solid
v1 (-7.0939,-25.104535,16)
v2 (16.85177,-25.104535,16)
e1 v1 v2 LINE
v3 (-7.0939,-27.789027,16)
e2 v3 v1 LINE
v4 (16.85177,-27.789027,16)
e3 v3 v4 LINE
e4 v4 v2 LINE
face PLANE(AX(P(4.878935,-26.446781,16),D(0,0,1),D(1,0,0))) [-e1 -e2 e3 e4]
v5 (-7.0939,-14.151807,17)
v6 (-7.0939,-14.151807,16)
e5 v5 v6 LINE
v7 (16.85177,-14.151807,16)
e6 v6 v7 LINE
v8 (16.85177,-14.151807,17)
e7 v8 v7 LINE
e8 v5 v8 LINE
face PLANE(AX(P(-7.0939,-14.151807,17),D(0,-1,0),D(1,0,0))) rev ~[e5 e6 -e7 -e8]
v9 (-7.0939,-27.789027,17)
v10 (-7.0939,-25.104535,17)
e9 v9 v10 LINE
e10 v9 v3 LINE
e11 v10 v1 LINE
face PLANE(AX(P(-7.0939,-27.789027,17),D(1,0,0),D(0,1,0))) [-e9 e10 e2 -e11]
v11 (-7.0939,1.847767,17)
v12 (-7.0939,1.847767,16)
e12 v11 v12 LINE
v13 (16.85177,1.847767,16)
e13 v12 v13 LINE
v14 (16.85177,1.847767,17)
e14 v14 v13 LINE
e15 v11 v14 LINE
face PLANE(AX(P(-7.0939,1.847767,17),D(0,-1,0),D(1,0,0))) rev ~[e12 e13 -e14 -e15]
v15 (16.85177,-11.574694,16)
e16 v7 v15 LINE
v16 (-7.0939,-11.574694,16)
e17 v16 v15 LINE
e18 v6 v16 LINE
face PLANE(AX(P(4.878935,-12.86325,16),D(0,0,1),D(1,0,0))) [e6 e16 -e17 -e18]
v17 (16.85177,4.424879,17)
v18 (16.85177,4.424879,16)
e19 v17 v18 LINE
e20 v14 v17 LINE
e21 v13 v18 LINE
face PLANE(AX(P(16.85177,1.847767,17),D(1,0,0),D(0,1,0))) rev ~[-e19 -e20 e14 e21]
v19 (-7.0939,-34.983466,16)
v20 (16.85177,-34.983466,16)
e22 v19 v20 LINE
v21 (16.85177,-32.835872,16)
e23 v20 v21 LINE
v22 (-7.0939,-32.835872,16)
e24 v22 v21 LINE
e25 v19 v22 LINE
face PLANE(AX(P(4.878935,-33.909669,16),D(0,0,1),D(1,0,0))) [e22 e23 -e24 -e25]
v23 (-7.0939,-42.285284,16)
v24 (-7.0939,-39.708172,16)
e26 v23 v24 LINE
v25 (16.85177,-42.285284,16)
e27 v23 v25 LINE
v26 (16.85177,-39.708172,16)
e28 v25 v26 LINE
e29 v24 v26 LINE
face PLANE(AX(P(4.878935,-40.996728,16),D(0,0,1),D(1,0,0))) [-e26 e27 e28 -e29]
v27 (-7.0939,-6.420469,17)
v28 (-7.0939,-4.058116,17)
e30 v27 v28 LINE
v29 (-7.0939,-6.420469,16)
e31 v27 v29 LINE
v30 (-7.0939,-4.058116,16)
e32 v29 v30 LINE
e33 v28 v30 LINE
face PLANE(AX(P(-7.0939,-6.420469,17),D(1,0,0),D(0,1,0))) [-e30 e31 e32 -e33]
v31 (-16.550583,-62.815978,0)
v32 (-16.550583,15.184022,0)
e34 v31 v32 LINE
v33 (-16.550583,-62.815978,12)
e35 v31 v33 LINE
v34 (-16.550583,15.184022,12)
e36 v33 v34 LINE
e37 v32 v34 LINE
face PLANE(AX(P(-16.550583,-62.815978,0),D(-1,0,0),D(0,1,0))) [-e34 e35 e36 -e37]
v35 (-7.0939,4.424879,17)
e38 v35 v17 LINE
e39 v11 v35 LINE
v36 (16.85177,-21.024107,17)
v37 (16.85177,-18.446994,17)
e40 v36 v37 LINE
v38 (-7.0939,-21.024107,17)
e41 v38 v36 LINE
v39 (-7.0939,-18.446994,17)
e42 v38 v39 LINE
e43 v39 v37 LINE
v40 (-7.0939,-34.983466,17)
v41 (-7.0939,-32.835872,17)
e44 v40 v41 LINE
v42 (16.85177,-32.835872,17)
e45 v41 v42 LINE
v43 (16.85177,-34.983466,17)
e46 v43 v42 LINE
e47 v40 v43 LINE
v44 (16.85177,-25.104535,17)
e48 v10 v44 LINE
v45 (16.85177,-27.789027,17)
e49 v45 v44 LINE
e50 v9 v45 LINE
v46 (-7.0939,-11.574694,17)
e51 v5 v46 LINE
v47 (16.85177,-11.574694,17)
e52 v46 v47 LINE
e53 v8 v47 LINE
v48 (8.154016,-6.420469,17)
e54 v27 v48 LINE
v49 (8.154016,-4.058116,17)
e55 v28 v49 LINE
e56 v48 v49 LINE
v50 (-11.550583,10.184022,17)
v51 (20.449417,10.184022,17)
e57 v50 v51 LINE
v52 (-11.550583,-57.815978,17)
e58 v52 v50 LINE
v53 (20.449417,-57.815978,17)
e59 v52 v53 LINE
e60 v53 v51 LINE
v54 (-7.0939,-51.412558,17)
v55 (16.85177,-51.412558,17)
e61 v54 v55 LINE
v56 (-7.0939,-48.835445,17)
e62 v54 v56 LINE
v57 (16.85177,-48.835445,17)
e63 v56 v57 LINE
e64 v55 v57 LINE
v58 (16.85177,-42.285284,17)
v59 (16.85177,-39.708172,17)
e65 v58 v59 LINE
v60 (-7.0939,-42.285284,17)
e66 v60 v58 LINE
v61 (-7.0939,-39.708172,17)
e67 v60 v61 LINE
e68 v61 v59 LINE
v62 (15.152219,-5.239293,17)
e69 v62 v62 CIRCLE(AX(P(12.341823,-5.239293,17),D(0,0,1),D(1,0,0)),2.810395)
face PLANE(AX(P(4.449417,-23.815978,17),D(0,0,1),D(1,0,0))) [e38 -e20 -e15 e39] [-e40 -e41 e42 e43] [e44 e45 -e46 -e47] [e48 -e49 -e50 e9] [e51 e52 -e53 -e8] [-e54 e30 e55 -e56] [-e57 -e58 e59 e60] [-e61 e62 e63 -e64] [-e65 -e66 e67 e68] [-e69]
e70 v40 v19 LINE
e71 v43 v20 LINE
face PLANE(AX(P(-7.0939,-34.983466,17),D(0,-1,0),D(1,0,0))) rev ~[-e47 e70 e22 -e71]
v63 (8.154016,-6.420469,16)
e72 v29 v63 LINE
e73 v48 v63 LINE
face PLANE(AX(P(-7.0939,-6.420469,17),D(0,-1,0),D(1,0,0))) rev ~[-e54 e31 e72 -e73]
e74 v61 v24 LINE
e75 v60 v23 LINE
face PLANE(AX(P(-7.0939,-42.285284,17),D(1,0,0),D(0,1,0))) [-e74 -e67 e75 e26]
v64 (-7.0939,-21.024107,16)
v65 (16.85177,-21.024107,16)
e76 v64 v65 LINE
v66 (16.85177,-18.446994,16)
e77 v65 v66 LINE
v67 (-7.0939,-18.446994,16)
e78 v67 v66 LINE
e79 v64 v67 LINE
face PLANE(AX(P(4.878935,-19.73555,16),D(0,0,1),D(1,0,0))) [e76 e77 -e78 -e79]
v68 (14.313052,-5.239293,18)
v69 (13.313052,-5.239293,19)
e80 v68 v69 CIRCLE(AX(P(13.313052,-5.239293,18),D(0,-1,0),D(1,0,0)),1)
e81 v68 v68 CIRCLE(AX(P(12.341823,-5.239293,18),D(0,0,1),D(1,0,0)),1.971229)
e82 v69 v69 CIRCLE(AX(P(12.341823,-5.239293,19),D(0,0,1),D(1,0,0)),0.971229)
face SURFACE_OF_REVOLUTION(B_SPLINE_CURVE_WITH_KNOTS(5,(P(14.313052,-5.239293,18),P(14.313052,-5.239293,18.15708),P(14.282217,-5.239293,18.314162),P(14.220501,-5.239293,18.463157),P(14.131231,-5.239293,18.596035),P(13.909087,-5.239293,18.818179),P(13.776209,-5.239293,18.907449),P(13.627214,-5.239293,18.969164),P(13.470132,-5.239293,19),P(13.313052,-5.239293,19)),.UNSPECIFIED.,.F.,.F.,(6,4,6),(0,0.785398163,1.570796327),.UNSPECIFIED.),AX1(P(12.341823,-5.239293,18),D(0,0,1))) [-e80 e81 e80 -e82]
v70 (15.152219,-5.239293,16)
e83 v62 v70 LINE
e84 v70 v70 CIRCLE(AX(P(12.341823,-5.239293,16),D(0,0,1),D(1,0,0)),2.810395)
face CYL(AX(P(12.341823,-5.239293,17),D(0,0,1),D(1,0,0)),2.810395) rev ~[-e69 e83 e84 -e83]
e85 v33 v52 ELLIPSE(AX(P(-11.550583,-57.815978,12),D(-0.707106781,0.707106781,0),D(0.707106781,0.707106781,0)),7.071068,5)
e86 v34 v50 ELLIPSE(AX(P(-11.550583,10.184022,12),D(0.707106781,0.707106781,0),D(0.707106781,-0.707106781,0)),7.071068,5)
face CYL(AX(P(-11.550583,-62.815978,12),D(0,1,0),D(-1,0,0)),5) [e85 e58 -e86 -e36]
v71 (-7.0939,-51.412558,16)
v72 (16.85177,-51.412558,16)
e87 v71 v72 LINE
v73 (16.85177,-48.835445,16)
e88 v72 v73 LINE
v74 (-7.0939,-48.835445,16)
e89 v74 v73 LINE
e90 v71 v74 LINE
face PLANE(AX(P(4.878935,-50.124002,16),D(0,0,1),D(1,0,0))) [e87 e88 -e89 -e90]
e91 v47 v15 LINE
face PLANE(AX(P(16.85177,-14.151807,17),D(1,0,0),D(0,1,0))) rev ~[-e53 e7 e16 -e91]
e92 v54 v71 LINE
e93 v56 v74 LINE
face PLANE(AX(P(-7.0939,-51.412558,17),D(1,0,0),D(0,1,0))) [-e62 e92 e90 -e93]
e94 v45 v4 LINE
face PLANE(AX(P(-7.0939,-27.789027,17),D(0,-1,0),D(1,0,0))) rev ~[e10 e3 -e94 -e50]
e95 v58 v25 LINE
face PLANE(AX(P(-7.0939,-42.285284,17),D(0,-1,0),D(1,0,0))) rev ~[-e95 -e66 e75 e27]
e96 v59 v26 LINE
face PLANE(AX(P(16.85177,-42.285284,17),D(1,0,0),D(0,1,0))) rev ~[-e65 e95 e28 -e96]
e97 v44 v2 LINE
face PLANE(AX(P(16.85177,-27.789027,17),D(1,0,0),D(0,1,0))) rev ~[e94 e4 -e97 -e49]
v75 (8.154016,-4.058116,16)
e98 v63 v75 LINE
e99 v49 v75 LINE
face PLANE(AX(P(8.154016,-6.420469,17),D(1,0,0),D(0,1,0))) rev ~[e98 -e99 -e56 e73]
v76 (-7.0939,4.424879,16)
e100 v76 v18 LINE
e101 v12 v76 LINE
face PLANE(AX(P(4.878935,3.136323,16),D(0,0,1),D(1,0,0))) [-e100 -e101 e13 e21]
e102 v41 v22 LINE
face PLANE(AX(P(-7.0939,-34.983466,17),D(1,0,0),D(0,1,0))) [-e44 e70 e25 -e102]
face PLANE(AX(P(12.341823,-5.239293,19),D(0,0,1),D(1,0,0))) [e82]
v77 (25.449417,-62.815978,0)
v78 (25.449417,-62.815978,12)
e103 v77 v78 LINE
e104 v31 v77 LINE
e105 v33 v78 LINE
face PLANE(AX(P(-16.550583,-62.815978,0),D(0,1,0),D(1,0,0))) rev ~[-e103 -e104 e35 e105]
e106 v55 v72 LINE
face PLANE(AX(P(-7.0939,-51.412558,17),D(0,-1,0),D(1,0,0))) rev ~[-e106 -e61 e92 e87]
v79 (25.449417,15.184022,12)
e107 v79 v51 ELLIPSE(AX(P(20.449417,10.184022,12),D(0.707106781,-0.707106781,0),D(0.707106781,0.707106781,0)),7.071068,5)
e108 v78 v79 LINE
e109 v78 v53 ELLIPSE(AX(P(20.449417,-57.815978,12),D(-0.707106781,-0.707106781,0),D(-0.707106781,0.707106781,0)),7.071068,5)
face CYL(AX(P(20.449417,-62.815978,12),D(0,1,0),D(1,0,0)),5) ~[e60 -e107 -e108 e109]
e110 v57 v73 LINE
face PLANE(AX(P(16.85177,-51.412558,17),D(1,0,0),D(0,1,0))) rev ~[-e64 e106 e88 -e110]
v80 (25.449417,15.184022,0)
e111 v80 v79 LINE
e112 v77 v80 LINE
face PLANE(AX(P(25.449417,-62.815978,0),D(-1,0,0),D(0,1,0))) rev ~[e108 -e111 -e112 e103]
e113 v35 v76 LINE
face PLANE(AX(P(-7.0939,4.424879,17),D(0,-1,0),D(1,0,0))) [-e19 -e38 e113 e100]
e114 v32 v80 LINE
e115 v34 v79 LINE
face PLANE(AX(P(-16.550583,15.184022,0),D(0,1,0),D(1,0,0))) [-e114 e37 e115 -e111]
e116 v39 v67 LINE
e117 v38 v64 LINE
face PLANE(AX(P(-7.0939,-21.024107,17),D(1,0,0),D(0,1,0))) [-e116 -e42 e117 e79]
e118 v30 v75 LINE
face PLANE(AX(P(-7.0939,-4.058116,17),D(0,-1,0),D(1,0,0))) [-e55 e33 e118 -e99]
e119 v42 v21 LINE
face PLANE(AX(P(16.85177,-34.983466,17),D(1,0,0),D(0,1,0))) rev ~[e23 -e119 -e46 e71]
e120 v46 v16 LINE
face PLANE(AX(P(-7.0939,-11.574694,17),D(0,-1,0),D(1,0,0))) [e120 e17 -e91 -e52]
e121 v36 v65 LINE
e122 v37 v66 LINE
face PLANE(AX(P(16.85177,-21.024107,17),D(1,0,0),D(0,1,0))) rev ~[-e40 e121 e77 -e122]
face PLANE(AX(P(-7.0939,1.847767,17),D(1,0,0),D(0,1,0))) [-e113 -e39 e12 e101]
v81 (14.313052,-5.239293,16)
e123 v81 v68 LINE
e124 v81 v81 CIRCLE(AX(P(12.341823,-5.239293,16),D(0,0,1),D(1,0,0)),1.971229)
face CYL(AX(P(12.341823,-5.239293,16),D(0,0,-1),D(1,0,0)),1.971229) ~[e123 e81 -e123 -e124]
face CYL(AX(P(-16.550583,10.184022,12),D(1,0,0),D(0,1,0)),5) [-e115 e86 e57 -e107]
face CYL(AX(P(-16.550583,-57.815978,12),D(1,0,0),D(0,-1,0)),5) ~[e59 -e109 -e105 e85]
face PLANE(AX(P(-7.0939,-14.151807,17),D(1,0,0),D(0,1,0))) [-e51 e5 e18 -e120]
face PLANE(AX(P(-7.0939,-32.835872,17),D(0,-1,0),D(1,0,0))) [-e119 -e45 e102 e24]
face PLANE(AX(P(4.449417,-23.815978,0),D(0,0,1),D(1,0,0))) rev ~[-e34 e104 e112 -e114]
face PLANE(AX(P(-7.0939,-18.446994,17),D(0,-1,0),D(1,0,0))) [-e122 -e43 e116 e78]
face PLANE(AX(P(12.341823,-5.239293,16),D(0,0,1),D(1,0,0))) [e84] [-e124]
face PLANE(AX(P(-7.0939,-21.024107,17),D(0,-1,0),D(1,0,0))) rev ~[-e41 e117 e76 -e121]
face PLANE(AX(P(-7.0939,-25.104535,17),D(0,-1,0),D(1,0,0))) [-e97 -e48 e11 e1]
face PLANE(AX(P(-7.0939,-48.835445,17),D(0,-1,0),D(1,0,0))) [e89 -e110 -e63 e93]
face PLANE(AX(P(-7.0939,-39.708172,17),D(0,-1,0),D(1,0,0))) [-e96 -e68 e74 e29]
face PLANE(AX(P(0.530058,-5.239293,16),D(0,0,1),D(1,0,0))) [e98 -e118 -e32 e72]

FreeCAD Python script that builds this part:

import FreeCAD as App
import Part
import Sketcher

V = App.Vector


def edges_at(feature, points):
    """Names of the edges that pass closest to the given points."""
    edges = feature.Shape.Edges
    near = lambda p: min(range(len(edges)), key=lambda i: edges[i].distToShape(Part.Vertex(*p))[0])
    return sorted({f"Edge{near(p) + 1}" for p in points})


def add_polygon(sketch, points):
    """Adds a closed chain of lines whose ends are joined by coincident constraints."""
    first, n = sketch.GeometryCount, len(points)
    for a, b in zip(points, points[1:] + points[:1]):
        sketch.addGeometry(Part.LineSegment(App.Vector(*a, 0), App.Vector(*b, 0)), False)
    for i in range(n):
        sketch.addConstraint(Sketcher.Constraint("Coincident", first + i, 2, first + (i + 1) % n, 1))

doc = App.newDocument("Part")
body = doc.addObject("PartDesign::Body", "Body")

# Sketch on XY plane
sketch1 = doc.addObject("Sketcher::SketchObject", "Sketch")
body.addObject(sketch1)
sketch1.AttachmentSupport = (doc.XY_Plane, [""])
sketch1.MapMode = "FlatFace"
add_polygon(sketch1, [(-17, 15), (-17, -63), (25, -63), (25, 15)])  # lines 0-3
sketch1.addConstraint(Sketcher.Constraint("Vertical", 0))
sketch1.addConstraint(Sketcher.Constraint("Horizontal", 1))
sketch1.addConstraint(Sketcher.Constraint("Vertical", 2))
sketch1.addConstraint(Sketcher.Constraint("Horizontal", 3))
sketch1.addConstraint(Sketcher.Constraint("DistanceX", 1, 1, 1, 2, 42.0))
sketch1.addConstraint(Sketcher.Constraint("DistanceY", 0, 2, 0, 1, 78.0))
sketch1.addConstraint(Sketcher.Constraint("DistanceY", 0, 2, -1, 1, 62.815978))
sketch1.addConstraint(Sketcher.Constraint("DistanceX", 0, 2, -1, 1, 16.550583))
pad1 = doc.addObject("PartDesign::Pad", "Pad")
body.addObject(pad1)
pad1.Profile = sketch1
pad1.Length = 17
doc.recompute()

fillet = doc.addObject("PartDesign::Fillet", "Fillet")
body.addObject(fillet)
fillet.Base = (pad1, edges_at(pad1, [
    (25.449, -23.816, 17),
    (4.449, 15.184, 17),
    (-16.551, -23.816, 17),
    (4.449, -62.816, 17),
]))
fillet.Radius = 5

# Sketch on XY plane
sketch2 = doc.addObject("Sketcher::SketchObject", "Sketch001")
body.addObject(sketch2)
sketch2.AttachmentSupport = (doc.XY_Plane, [""])
sketch2.MapMode = "FlatFace"
sketch2.AttachmentOffset = App.Placement(V(0, 0, 17), App.Rotation())
sketch2.addGeometry(Part.Circle(V(12.3, -5.2, 0), V(0, 0, 1), 2.8), False)  # 0
add_polygon(sketch2, [(-7.1, 4.4), (-7.1, 1.8), (16.9, 1.8), (16.9, 4.4)])  # lines 1-4
add_polygon(sketch2, [(-7.1, -4.1), (-7.1, -6.4), (8.2, -6.4), (8.2, -4.1)])  # lines 5-8
add_polygon(sketch2, [(-7.1, -11.6), (-7.1, -14.2), (16.9, -14.2), (16.9, -11.6)])  # lines 9-12
add_polygon(sketch2, [(-7.1, -18.4), (-7.1, -21), (16.9, -21), (16.9, -18.4)])  # lines 13-16
add_polygon(sketch2, [(-7.1, -25.1), (-7.1, -27.8), (16.9, -27.8), (16.9, -25.1)])  # lines 17-20
add_polygon(sketch2, [(-7.1, -32.8), (-7.1, -35), (16.9, -35), (16.9, -32.8)])  # lines 21-24
add_polygon(sketch2, [(-7.1, -39.7), (-7.1, -42.3), (16.9, -42.3), (16.9, -39.7)])  # lines 25-28
add_polygon(sketch2, [(-7.1, -48.8), (-7.1, -51.4), (16.9, -51.4), (16.9, -48.8)])  # lines 29-32
sketch2.addConstraint(Sketcher.Constraint("Vertical", 1))
sketch2.addConstraint(Sketcher.Constraint("Horizontal", 2))
sketch2.addConstraint(Sketcher.Constraint("Vertical", 3))
sketch2.addConstraint(Sketcher.Constraint("Horizontal", 4))
sketch2.addConstraint(Sketcher.Constraint("Vertical", 5))
sketch2.addConstraint(Sketcher.Constraint("Horizontal", 6))
sketch2.addConstraint(Sketcher.Constraint("Vertical", 7))
sketch2.addConstraint(Sketcher.Constraint("Horizontal", 8))
sketch2.addConstraint(Sketcher.Constraint("Vertical", 9))
sketch2.addConstraint(Sketcher.Constraint("Horizontal", 10))
sketch2.addConstraint(Sketcher.Constraint("Vertical", 11))
sketch2.addConstraint(Sketcher.Constraint("Horizontal", 12))
sketch2.addConstraint(Sketcher.Constraint("Vertical", 13))
sketch2.addConstraint(Sketcher.Constraint("Horizontal", 14))
sketch2.addConstraint(Sketcher.Constraint("Vertical", 15))
sketch2.addConstraint(Sketcher.Constraint("Horizontal", 16))
sketch2.addConstraint(Sketcher.Constraint("Vertical", 17))
sketch2.addConstraint(Sketcher.Constraint("Horizontal", 18))
sketch2.addConstraint(Sketcher.Constraint("Vertical", 19))
sketch2.addConstraint(Sketcher.Constraint("Horizontal", 20))
sketch2.addConstraint(Sketcher.Constraint("Vertical", 21))
sketch2.addConstraint(Sketcher.Constraint("Horizontal", 22))
sketch2.addConstraint(Sketcher.Constraint("Vertical", 23))
sketch2.addConstraint(Sketcher.Constraint("Horizontal", 24))
sketch2.addConstraint(Sketcher.Constraint("Vertical", 25))
sketch2.addConstraint(Sketcher.Constraint("Horizontal", 26))
sketch2.addConstraint(Sketcher.Constraint("Vertical", 27))
sketch2.addConstraint(Sketcher.Constraint("Horizontal", 28))
sketch2.addConstraint(Sketcher.Constraint("Vertical", 29))
sketch2.addConstraint(Sketcher.Constraint("Horizontal", 30))
sketch2.addConstraint(Sketcher.Constraint("Vertical", 31))
sketch2.addConstraint(Sketcher.Constraint("Horizontal", 32))
sketch2.addConstraint(Sketcher.Constraint("Vertical", 4, 2, 5, 2))
sketch2.addConstraint(Sketcher.Constraint("Vertical", 8, 2, 9, 2))
sketch2.addConstraint(Sketcher.Constraint("Vertical", 3, 2, 10, 2))
sketch2.addConstraint(Sketcher.Constraint("Vertical", 12, 2, 13, 2))
sketch2.addConstraint(Sketcher.Constraint("Vertical", 11, 2, 14, 2))
sketch2.addConstraint(Sketcher.Constraint("Vertical", 16, 2, 17, 2))
sketch2.addConstraint(Sketcher.Constraint("Vertical", 15, 2, 18, 2))
sketch2.addConstraint(Sketcher.Constraint("Vertical", 20, 2, 21, 2))
sketch2.addConstraint(Sketcher.Constraint("Vertical", 19, 2, 22, 2))
sketch2.addConstraint(Sketcher.Constraint("Vertical", 24, 2, 25, 2))
sketch2.addConstraint(Sketcher.Constraint("Vertical", 23, 2, 26, 2))
sketch2.addConstraint(Sketcher.Constraint("Vertical", 28, 2, 29, 2))
sketch2.addConstraint(Sketcher.Constraint("Vertical", 27, 2, 30, 2))
sketch2.addConstraint(Sketcher.Constraint("Equal", 3, 9))
sketch2.addConstraint(Sketcher.Constraint("Equal", 11, 13))
sketch2.addConstraint(Sketcher.Constraint("Equal", 15, 25))
sketch2.addConstraint(Sketcher.Constraint("Equal", 27, 29))
sketch2.addConstraint(Sketcher.Constraint("Diameter", 0, 5.620791))
sketch2.addConstraint(Sketcher.Constraint("DistanceX", 2, 1, 2, 2, 23.94567))
sketch2.addConstraint(Sketcher.Constraint("DistanceX", 1, 2, -1, 1, 7.0939))
sketch2.addConstraint(Sketcher.Constraint("DistanceY", 11, 2, 0, 3, 6.335401))
sketch2.addConstraint(Sketcher.Constraint("DistanceY", 13, 2, 9, 2, 6.8723))
sketch2.addConstraint(Sketcher.Constraint("DistanceY", 27, 2, 23, 2, 6.8723))
sketch2.addConstraint(Sketcher.Constraint("DistanceX", 6, 1, 6, 2, 15.247915))
sketch2.addConstraint(Sketcher.Constraint("DistanceY", 1, 2, 1, 1, 2.577112))
sketch2.addConstraint(Sketcher.Constraint("DistanceY", 5, 2, 5, 1, 2.362353))
sketch2.addConstraint(Sketcher.Constraint("DistanceY", 17, 2, 17, 1, 2.684492))
sketch2.addConstraint(Sketcher.Constraint("DistanceY", 21, 2, 21, 1, 2.147594))
sketch2.addConstraint(Sketcher.Constraint("DistanceY", -1, 1, 3, 2, 4.424879))
sketch2.addConstraint(Sketcher.Constraint("DistanceY", 5, 2, -1, 1, 6.420469))
sketch2.addConstraint(Sketcher.Constraint("DistanceY", 27, 2, -1, 1, 39.708172))
sketch2.addConstraint(Sketcher.Constraint("DistanceY", 0, 3, 1, 2, 7.087059))
sketch2.addConstraint(Sketcher.Constraint("DistanceY", 17, 2, 13, 2, 6.76492))
sketch2.addConstraint(Sketcher.Constraint("DistanceY", 29, 2, 21, 2, 16.429092))
sketch2.addConstraint(Sketcher.Constraint("DistanceX", -1, 1, 0, 3, 12.341823))
pocket1 = doc.addObject("PartDesign::Pocket", "Pocket")
body.addObject(pocket1)
pocket1.Profile = sketch2
pocket1.Length = 1

# Sketch on XY plane
sketch3 = doc.addObject("Sketcher::SketchObject", "Sketch002")
body.addObject(sketch3)
sketch3.AttachmentSupport = (doc.XY_Plane, [""])
sketch3.MapMode = "FlatFace"
sketch3.AttachmentOffset = App.Placement(V(0, 0, 16), App.Rotation())
sketch3.addGeometry(Part.Circle(V(12.3, -5.2, 0), V(0, 0, 1), 2), False)
sketch3.addConstraint(Sketcher.Constraint("Diameter", 0, 3.942458))
sketch3.addConstraint(Sketcher.Constraint("DistanceX", -1, 1, 0, 3, 12.341823))
sketch3.addConstraint(Sketcher.Constraint("DistanceY", 0, 3, -1, 1, 5.239293))
pad2 = doc.addObject("PartDesign::Pad", "Pad001")
body.addObject(pad2)
pad2.Profile = sketch3
pad2.Length = 3
doc.recompute()

fillet2 = doc.addObject("PartDesign::Fillet", "Fillet001")
body.addObject(fillet2)
fillet2.Base = (pad2, edges_at(pad2, [(10.371, -5.239, 19)]))
fillet2.Radius = 1

doc.recompute()
